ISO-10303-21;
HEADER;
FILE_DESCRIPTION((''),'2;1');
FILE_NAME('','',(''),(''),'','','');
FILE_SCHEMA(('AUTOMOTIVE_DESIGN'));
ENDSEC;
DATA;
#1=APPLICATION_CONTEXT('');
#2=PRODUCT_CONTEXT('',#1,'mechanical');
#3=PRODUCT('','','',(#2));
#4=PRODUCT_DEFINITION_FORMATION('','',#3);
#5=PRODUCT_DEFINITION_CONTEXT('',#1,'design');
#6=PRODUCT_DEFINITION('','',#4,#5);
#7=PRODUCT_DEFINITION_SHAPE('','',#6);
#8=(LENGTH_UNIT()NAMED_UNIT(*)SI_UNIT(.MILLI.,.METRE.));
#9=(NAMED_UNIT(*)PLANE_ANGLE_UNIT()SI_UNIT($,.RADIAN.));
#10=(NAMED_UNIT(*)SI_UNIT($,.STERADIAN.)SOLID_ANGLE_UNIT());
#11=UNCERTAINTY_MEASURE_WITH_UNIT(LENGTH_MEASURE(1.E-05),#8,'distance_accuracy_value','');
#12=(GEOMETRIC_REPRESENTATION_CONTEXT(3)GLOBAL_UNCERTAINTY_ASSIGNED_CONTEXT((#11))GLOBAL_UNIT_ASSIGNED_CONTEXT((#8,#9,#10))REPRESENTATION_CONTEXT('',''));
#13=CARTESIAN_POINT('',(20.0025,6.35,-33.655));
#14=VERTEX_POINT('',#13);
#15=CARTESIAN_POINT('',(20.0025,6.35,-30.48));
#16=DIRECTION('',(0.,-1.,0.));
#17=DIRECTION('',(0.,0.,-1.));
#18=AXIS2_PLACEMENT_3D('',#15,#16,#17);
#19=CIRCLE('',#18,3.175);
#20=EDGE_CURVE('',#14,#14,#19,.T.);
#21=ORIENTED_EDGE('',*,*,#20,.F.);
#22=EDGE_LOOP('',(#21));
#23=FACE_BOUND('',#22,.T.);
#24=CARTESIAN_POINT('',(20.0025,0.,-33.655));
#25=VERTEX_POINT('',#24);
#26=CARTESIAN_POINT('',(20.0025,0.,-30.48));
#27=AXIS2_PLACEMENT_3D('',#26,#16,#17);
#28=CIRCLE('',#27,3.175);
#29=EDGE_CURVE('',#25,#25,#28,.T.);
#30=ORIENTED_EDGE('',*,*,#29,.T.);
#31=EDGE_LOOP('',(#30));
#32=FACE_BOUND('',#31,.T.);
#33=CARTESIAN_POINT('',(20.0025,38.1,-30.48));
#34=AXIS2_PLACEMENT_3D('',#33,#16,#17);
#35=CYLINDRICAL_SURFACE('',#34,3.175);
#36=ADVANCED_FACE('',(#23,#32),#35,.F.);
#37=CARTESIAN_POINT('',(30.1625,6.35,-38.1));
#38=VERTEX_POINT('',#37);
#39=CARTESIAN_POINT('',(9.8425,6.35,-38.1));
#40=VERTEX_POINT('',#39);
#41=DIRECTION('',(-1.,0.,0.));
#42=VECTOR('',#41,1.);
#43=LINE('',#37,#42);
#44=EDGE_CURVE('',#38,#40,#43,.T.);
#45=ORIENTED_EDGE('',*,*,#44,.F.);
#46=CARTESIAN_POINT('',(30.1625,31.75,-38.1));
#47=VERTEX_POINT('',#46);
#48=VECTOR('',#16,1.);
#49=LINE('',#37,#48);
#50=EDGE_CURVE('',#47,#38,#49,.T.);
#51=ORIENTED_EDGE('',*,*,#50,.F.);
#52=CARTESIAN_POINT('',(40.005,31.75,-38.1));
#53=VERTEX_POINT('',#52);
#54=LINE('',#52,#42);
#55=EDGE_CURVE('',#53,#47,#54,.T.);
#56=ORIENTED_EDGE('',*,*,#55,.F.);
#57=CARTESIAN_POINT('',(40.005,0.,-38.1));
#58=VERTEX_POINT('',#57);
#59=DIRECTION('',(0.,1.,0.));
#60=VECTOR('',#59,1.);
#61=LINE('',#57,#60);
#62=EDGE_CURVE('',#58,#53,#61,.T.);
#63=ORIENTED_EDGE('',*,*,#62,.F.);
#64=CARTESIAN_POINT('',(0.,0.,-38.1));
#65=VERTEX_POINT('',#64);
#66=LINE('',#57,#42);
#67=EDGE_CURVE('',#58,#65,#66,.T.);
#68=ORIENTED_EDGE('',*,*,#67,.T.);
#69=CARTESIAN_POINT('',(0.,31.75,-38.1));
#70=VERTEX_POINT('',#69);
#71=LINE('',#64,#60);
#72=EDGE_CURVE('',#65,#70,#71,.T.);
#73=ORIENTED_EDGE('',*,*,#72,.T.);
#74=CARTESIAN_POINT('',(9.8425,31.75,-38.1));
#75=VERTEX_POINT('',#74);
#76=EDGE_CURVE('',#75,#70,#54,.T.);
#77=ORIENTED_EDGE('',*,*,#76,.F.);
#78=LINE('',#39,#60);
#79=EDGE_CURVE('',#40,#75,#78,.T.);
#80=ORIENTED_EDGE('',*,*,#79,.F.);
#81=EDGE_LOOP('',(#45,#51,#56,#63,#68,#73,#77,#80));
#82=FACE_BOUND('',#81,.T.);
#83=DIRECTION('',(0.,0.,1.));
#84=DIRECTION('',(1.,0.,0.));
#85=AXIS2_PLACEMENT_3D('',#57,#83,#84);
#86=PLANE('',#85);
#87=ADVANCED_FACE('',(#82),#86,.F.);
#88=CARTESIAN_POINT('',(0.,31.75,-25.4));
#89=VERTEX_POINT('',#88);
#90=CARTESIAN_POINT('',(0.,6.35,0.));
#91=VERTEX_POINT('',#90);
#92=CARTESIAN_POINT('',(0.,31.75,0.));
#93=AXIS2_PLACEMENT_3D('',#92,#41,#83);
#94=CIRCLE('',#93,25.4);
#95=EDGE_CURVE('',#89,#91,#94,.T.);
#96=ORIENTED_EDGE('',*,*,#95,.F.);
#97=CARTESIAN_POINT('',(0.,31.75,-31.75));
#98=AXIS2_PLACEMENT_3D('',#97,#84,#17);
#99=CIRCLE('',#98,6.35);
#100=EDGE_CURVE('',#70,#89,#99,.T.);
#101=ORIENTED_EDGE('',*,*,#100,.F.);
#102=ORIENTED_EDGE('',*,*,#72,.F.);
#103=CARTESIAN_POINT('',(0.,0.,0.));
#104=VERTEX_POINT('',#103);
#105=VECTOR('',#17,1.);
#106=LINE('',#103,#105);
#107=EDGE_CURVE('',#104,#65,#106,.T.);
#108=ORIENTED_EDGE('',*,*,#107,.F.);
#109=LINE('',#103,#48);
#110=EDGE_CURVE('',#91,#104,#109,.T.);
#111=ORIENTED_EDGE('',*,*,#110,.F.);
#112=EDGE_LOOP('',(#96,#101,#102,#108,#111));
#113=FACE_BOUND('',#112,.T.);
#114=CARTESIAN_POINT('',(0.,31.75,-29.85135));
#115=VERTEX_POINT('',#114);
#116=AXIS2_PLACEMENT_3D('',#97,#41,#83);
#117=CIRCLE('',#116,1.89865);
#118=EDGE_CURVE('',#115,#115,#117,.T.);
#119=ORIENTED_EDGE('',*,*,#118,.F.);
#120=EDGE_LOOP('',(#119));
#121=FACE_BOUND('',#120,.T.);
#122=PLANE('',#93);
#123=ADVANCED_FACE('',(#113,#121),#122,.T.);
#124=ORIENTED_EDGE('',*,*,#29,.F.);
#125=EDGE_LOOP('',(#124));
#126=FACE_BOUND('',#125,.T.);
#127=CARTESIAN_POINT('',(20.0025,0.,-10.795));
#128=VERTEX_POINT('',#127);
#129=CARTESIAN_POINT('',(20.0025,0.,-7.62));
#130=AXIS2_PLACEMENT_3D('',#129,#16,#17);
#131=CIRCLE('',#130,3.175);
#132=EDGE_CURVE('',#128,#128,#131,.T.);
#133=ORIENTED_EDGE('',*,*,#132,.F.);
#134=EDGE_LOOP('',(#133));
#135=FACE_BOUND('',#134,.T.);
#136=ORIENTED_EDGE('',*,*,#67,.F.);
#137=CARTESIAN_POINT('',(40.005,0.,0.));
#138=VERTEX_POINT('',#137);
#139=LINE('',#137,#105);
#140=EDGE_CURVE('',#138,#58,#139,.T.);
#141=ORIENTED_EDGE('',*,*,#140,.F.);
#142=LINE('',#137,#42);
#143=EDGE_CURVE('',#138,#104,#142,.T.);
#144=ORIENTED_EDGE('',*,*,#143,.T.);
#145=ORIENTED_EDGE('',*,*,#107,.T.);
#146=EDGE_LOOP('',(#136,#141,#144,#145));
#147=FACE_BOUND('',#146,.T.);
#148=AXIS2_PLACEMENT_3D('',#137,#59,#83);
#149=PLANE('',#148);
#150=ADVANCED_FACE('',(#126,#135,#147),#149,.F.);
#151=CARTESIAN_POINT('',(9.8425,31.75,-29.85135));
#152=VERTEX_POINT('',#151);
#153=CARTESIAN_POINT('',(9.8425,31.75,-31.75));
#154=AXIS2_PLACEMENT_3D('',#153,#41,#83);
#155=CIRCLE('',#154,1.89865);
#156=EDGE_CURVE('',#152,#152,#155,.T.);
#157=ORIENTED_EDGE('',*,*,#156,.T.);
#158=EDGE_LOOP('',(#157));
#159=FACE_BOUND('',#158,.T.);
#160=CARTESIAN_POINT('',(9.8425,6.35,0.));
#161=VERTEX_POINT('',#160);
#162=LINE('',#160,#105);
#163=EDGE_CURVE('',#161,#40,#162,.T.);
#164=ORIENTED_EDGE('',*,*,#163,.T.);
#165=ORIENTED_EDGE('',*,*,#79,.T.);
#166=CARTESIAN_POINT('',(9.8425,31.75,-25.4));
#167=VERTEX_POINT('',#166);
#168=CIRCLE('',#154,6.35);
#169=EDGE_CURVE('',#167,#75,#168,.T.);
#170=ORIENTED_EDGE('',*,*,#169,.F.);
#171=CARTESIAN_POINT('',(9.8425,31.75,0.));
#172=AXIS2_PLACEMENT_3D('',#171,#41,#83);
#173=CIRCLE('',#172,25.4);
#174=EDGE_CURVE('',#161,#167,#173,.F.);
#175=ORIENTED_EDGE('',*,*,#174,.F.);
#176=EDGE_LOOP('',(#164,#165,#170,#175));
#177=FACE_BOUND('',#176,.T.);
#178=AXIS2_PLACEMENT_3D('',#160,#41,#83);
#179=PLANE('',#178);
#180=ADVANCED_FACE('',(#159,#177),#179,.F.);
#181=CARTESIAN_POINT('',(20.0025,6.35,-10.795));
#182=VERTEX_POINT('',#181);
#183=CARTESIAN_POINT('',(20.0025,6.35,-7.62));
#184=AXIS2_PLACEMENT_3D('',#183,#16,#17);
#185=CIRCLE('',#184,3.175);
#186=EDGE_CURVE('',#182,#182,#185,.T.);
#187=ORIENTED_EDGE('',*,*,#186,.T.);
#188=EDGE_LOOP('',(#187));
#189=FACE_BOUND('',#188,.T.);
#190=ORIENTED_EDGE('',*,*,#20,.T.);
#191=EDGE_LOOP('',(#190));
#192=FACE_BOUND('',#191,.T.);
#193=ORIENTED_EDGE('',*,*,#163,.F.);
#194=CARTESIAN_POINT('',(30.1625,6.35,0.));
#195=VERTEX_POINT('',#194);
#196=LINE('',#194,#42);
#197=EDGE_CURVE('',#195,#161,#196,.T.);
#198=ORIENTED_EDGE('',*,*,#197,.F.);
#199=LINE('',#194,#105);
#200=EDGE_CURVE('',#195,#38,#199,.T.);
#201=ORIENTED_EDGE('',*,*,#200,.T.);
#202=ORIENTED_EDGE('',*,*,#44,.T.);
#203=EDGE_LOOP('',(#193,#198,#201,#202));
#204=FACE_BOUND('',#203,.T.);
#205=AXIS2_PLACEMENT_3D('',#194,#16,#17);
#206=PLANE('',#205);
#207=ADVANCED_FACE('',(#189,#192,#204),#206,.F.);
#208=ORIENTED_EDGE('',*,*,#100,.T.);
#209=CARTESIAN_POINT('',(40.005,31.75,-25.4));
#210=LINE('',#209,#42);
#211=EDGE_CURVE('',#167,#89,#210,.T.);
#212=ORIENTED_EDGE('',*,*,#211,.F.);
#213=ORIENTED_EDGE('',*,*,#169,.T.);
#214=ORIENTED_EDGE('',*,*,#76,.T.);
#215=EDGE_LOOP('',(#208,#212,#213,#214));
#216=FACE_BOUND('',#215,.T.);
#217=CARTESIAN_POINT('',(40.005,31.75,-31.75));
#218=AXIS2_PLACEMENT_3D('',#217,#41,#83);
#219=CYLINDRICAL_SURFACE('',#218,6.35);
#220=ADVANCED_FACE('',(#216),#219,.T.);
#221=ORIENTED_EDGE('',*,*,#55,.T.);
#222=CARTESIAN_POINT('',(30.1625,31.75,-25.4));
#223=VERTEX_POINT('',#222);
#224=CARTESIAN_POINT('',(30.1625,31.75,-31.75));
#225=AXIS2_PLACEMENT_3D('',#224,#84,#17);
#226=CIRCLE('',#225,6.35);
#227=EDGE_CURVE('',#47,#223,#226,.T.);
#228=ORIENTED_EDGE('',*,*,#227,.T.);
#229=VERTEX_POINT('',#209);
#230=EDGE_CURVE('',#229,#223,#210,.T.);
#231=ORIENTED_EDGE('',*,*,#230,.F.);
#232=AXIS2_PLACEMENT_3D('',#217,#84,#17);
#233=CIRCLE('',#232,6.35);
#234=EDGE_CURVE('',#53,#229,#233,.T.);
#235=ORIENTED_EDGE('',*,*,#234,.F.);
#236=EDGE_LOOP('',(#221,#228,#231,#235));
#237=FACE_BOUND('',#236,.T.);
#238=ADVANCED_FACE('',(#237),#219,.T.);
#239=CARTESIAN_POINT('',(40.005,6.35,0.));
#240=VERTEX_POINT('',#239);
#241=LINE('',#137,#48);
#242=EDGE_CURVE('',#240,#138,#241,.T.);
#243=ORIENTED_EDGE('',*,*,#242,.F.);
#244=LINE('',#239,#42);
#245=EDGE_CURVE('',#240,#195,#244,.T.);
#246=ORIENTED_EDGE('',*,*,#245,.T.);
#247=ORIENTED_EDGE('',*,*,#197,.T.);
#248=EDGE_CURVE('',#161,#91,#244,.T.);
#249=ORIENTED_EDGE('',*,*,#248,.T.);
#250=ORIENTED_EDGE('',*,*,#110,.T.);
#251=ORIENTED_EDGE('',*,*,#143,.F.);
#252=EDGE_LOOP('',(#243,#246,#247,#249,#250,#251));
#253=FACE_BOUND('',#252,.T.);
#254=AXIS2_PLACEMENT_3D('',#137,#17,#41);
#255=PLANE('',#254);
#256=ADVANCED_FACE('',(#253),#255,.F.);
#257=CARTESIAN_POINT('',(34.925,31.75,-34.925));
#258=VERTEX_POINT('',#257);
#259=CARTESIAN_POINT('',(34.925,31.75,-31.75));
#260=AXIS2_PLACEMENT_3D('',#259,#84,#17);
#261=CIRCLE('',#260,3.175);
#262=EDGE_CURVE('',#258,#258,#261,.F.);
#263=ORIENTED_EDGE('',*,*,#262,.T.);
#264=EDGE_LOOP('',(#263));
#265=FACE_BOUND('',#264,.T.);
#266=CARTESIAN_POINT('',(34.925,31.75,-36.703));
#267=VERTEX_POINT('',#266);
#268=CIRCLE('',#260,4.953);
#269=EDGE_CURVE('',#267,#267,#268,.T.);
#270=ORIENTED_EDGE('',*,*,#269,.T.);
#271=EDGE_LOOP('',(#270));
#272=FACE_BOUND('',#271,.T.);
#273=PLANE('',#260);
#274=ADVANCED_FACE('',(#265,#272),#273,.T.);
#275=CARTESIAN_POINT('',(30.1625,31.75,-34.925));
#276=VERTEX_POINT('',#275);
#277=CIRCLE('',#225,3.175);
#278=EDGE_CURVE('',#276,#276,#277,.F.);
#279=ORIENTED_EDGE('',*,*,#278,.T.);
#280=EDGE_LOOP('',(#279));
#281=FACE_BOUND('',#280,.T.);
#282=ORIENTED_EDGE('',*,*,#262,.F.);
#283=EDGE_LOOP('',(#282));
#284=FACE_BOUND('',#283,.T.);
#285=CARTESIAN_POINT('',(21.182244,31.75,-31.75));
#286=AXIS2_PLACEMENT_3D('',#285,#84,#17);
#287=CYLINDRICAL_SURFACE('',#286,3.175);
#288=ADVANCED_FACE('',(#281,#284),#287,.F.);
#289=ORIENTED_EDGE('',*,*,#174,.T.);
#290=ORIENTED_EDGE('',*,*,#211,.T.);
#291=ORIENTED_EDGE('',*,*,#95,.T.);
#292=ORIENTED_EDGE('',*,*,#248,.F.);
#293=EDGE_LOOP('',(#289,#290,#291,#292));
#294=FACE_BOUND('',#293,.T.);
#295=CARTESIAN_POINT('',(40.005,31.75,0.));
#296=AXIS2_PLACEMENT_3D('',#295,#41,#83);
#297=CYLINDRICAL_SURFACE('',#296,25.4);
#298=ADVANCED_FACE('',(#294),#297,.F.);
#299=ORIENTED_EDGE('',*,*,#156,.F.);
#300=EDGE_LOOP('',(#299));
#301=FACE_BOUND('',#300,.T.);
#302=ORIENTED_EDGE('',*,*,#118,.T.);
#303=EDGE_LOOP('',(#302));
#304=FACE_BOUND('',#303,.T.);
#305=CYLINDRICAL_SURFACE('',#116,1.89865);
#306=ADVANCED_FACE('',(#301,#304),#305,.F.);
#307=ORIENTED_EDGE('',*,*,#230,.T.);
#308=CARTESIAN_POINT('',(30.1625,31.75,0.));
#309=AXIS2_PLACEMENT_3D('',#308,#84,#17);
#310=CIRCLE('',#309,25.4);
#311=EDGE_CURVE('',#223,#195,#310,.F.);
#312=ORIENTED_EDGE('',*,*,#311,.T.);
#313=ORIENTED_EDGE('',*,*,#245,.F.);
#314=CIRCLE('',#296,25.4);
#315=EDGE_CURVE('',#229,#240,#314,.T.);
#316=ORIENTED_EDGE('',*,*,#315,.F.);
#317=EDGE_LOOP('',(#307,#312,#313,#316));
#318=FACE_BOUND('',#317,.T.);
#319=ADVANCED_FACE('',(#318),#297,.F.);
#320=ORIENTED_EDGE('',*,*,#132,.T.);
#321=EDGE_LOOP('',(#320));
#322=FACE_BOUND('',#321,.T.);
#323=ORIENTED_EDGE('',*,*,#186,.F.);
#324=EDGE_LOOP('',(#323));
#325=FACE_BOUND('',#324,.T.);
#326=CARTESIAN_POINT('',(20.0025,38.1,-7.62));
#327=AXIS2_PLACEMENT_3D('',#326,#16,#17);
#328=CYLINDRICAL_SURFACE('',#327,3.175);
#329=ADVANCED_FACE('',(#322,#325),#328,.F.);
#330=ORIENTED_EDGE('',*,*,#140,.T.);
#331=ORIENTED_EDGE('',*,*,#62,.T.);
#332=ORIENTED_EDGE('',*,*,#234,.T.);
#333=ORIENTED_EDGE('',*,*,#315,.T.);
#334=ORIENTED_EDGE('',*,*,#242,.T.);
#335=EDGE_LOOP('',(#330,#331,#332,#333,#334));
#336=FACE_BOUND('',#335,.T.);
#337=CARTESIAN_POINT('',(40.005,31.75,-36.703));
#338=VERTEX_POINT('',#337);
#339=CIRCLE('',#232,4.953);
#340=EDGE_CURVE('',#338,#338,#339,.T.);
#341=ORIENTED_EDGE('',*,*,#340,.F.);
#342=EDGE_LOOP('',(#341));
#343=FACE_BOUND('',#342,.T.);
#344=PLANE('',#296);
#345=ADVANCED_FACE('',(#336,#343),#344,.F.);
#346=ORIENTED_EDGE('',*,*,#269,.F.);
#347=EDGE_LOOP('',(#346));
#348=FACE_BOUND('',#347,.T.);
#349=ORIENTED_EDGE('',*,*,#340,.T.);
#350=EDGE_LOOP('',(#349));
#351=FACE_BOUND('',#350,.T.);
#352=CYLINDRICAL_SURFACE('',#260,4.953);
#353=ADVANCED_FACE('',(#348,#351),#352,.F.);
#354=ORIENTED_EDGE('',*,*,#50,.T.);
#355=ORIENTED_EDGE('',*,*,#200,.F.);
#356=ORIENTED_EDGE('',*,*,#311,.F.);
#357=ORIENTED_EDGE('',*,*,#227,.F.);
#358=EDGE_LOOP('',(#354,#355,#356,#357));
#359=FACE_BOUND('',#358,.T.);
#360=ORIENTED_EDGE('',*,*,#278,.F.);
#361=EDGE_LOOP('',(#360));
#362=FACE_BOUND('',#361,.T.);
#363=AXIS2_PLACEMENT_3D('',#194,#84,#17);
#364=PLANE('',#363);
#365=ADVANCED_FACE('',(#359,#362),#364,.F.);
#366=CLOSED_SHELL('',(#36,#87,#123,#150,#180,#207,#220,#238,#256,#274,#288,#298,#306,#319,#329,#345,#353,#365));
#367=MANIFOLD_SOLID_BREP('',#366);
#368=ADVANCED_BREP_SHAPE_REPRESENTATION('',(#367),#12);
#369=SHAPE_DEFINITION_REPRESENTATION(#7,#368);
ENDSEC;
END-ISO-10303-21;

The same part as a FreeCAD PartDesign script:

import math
import FreeCAD as App
import Part
import Sketcher

V = App.Vector
Q = App.Units.Quantity

doc = App.newDocument("Part")
body = doc.addObject("PartDesign::Body", "Body")

# Sketch on YZ plane
sketch1 = doc.addObject("Sketcher::SketchObject", "Sketch")
body.addObject(sketch1)
sketch1.AttachmentSupport = (doc.YZ_Plane, [""])
sketch1.MapMode = "FlatFace"
sketch1.addGeometry(Part.LineSegment(V(0, 0, 0), V(0, -38, 0)), False)
sketch1.addGeometry(Part.LineSegment(V(0, -38, 0), V(32, -38, 0)), False)
sketch1.addGeometry(Part.ArcOfCircle(Part.Circle(V(32, -32, 0), V(0, 0, 1), 6), math.radians(-90), math.radians(90)), False)
sketch1.addGeometry(Part.ArcOfCircle(Part.Circle(V(32, 0, 0), V(0, 0, 1), 25), math.radians(180), math.radians(270)), False)
sketch1.addGeometry(Part.LineSegment(V(6, 0, 0), V(0, 0, 0)), False)
sketch1.addConstraint(Sketcher.Constraint("Coincident", 0, 2, 1, 1))
sketch1.addConstraint(Sketcher.Constraint("Tangent", 1, 2, 2, 1))
sketch1.addConstraint(Sketcher.Constraint("Tangent", 2, 2, 3, 2))
sketch1.addConstraint(Sketcher.Constraint("Coincident", 3, 1, 4, 1))
sketch1.addConstraint(Sketcher.Constraint("Coincident", 4, 2, 0, 1))
sketch1.addConstraint(Sketcher.Constraint("Vertical", 0))
sketch1.addConstraint(Sketcher.Constraint("Horizontal", 1))
sketch1.addConstraint(Sketcher.Constraint("Horizontal", 4))
sketch1.addConstraint(Sketcher.Constraint("Coincident", 4, 2, -1, 1))
sketch1.addConstraint(Sketcher.Constraint("PointOnObject", 3, 3, -1))
sketch1.addConstraint(Sketcher.Constraint("Vertical", 2, 3, 3, 3))
sketch1.addConstraint(Sketcher.Constraint("Radius", 3, Q("1 in")))
sketch1.addConstraint(Sketcher.Constraint("Radius", 2, Q("0.25 in")))
sketch1.addConstraint(Sketcher.Constraint("DistanceX", 1, 1, 1, 2, Q("1.25 in")))
pad1 = doc.addObject("PartDesign::Pad", "Pad")
body.addObject(pad1)
pad1.Profile = sketch1
pad1.Length = Q("1.575 in")

# Sketch on XY plane
sketch2 = doc.addObject("Sketcher::SketchObject", "Sketch001")
body.addObject(sketch2)
sketch2.AttachmentSupport = (doc.XY_Plane, [""])
sketch2.MapMode = "FlatFace"
sketch2.AttachmentOffset = App.Placement(V(0, 0, -1.5 * 25.4), App.Rotation())
sketch2.addGeometry(Part.LineSegment(V(30, 49, 0), V(30, 6, 0)), False)
sketch2.addGeometry(Part.LineSegment(V(30, 6, 0), V(10, 6, 0)), False)
sketch2.addGeometry(Part.LineSegment(V(10, 6, 0), V(10, 49, 0)), False)
sketch2.addGeometry(Part.LineSegment(V(10, 49, 0), V(30, 49, 0)), False)
sketch2.addConstraint(Sketcher.Constraint("Coincident", 0, 2, 1, 1))
sketch2.addConstraint(Sketcher.Constraint("Coincident", 1, 2, 2, 1))
sketch2.addConstraint(Sketcher.Constraint("Coincident", 2, 2, 3, 1))
sketch2.addConstraint(Sketcher.Constraint("Coincident", 3, 2, 0, 1))
sketch2.addConstraint(Sketcher.Constraint("Vertical", 0))
sketch2.addConstraint(Sketcher.Constraint("Horizontal", 1))
sketch2.addConstraint(Sketcher.Constraint("Vertical", 2))
sketch2.addConstraint(Sketcher.Constraint("Horizontal", 3))
sketch2.addConstraint(Sketcher.Constraint("DistanceX", 1, 2, 1, 1, Q("0.8 in")))
sketch2.addConstraint(Sketcher.Constraint("DistanceY", -1, 1, 0, 2, Q("0.25 in")))
sketch2.addConstraint(Sketcher.Constraint("DistanceX", -1, 1, 0, 2, Q("1.1875 in")))
sketch2.addConstraint(Sketcher.Constraint("DistanceY", 0, 2, 0, 1, Q("42.204837 mm")))
pocket1 = doc.addObject("PartDesign::Pocket", "Pocket")
body.addObject(pocket1)
pocket1.Profile = sketch2
pocket1.Type = "ThroughAll"
pocket1.Reversed = True

# Sketch on YZ plane
sketch3 = doc.addObject("Sketcher::SketchObject", "Sketch002")
body.addObject(sketch3)
sketch3.AttachmentSupport = (doc.YZ_Plane, [""])
sketch3.MapMode = "FlatFace"
sketch3.AttachmentOffset = App.Placement(V(0, 0, 1.575 * 25.4), App.Rotation())
sketch3.addGeometry(Part.Circle(V(31.8, -31.8, 0), V(0, 0, 1), 3.2), False)
sketch3.addConstraint(Sketcher.Constraint("Diameter", 0, Q("0.25 in")))
sketch3.addConstraint(Sketcher.Constraint("DistanceX", -1, 1, 0, 3, Q("1.25 in")))
sketch3.addConstraint(Sketcher.Constraint("DistanceY", 0, 3, -1, 1, Q("1.25 in")))
pocket2 = doc.addObject("PartDesign::Pocket", "Pocket001")
body.addObject(pocket2)
pocket2.Profile = sketch3
pocket2.Length = Q("0.3875 in")

# Sketch on YZ plane
sketch4 = doc.addObject("Sketcher::SketchObject", "Sketch003")
body.addObject(sketch4)
sketch4.AttachmentSupport = (doc.YZ_Plane, [""])
sketch4.MapMode = "FlatFace"
sketch4.AttachmentOffset = App.Placement(V(0, 0, 1.575 * 25.4), App.Rotation())
sketch4.addGeometry(Part.Circle(V(31.8, -31.8, 0), V(0, 0, 1), 5), False)
sketch4.addConstraint(Sketcher.Constraint("Diameter", 0, Q("0.39 in")))
sketch4.addConstraint(Sketcher.Constraint("DistanceX", -1, 1, 0, 3, Q("1.25 in")))
sketch4.addConstraint(Sketcher.Constraint("DistanceY", 0, 3, -1, 1, Q("1.25 in")))
pocket3 = doc.addObject("PartDesign::Pocket", "Pocket002")
body.addObject(pocket3)
pocket3.Profile = sketch4
pocket3.Length = Q("0.2 in")

# Sketch on YZ plane
sketch5 = doc.addObject("Sketcher::SketchObject", "Sketch004")
body.addObject(sketch5)
sketch5.AttachmentSupport = (doc.YZ_Plane, [""])
sketch5.MapMode = "FlatFace"
sketch5.addGeometry(Part.Circle(V(31.8, -31.8, 0), V(0, 0, 1), 1.9), False)
sketch5.addConstraint(Sketcher.Constraint("Diameter", 0, Q("0.1495 in")))
sketch5.addConstraint(Sketcher.Constraint("DistanceX", -1, 1, 0, 3, Q("1.25 in")))
sketch5.addConstraint(Sketcher.Constraint("DistanceY", 0, 3, -1, 1, Q("1.25 in")))
doc.recompute()
hole = doc.addObject("PartDesign::Hole", "Hole")
body.addObject(hole)
hole.Profile = sketch5
hole.ThreadType = "None"
hole.Diameter = Q("0.1495 in")
hole.DepthType = "Dimension"
hole.Depth = Q("0.505 in")
hole.DrillPoint = "Angled"
hole.DrillPointAngle = 118
hole.Reversed = True

# Sketch on XZ plane
sketch6 = doc.addObject("Sketcher::SketchObject", "Sketch005")
body.addObject(sketch6)
sketch6.AttachmentSupport = (doc.XZ_Plane, [""])
sketch6.MapMode = "FlatFace"
sketch6.addGeometry(Part.Circle(V(20, -7.6, 0), V(0, 0, 1), 3.2), False)
sketch6.addGeometry(Part.Circle(V(20, -30.5, 0), V(0, 0, 1), 3.2), False)
sketch6.addConstraint(Sketcher.Constraint("Equal", 0, 1))
sketch6.addConstraint(Sketcher.Constraint("Vertical", 0, 3, 1, 3))
sketch6.addConstraint(Sketcher.Constraint("Diameter", 0, Q("0.25 in")))
sketch6.addConstraint(Sketcher.Constraint("DistanceY", 0, 3, -1, 1, Q("0.3 in")))
sketch6.addConstraint(Sketcher.Constraint("DistanceY", 1, 3, -1, 1, Q("1.2 in")))
sketch6.addConstraint(Sketcher.Constraint("DistanceX", -1, 1, 0, 3, Q("0.7875 in")))
pocket4 = doc.addObject("PartDesign::Pocket", "Pocket003")
body.addObject(pocket4)
pocket4.Profile = sketch6
pocket4.Type = "ThroughAll"

doc.recompute()
